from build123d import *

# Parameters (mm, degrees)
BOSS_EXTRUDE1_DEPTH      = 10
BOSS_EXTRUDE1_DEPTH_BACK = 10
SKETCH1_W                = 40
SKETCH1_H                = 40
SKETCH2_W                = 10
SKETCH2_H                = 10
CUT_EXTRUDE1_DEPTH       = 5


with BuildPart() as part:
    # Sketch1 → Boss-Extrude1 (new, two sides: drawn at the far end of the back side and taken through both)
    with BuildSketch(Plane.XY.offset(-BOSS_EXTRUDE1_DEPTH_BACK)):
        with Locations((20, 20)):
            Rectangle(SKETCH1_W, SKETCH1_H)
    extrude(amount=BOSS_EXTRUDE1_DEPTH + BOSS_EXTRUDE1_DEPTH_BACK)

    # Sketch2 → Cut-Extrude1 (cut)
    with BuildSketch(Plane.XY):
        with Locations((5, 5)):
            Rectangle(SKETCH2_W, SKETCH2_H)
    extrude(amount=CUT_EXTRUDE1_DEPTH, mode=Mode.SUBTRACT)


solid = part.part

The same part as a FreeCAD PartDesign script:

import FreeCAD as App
import Part
import Sketcher

V = App.Vector

doc = App.newDocument("Part")
body = doc.addObject("PartDesign::Body", "Body")

sketch1 = doc.addObject("Sketcher::SketchObject", "Sketch")
body.addObject(sketch1)
sketch1.AttachmentSupport = (doc.XY_Plane, [""])
sketch1.MapMode = "FlatFace"
sketch1.addGeometry([
    Part.LineSegment(V(0, 40, 0), V(0, 0, 0)),
    Part.LineSegment(V(0, 0, 0), V(40, 0, 0)),
    Part.LineSegment(V(40, 0, 0), V(40, 40, 0)),
    Part.LineSegment(V(40, 40, 0), V(0, 40, 0)),
], False)
sketch1.addConstraint([
    Sketcher.Constraint("Coincident", 0, 2, 1, 1),
    Sketcher.Constraint("Coincident", 1, 2, 2, 1),
    Sketcher.Constraint("Coincident", 2, 2, 3, 1),
    Sketcher.Constraint("Coincident", 3, 2, 0, 1),
    Sketcher.Constraint("Vertical", 0),
    Sketcher.Constraint("Horizontal", 1),
    Sketcher.Constraint("Vertical", 2),
    Sketcher.Constraint("Horizontal", 3),
    Sketcher.Constraint("Coincident", 0, 2, -1, 1),
    Sketcher.Constraint("Equal", 3, 0),
    Sketcher.Constraint("DistanceX", 1, 1, 1, 2, 40.0),
])
pad1 = doc.addObject("PartDesign::Pad", "Pad")
body.addObject(pad1)
pad1.Profile = sketch1
pad1.Type = "TwoLengths"
pad1.Length = 10
pad1.Length2 = 10

sketch2 = doc.addObject("Sketcher::SketchObject", "Sketch001")
body.addObject(sketch2)
sketch2.AttachmentSupport = (doc.XY_Plane, [""])
sketch2.MapMode = "FlatFace"
sketch2.addGeometry([
    Part.LineSegment(V(0, 10, 0), V(0, 0, 0)),
    Part.LineSegment(V(0, 0, 0), V(10, 0, 0)),
    Part.LineSegment(V(10, 0, 0), V(10, 10, 0)),
    Part.LineSegment(V(10, 10, 0), V(0, 10, 0)),
], False)
sketch2.addConstraint([
    Sketcher.Constraint("Coincident", 0, 2, 1, 1),
    Sketcher.Constraint("Coincident", 1, 2, 2, 1),
    Sketcher.Constraint("Coincident", 2, 2, 3, 1),
    Sketcher.Constraint("Coincident", 3, 2, 0, 1),
    Sketcher.Constraint("Vertical", 0),
    Sketcher.Constraint("Horizontal", 1),
    Sketcher.Constraint("Vertical", 2),
    Sketcher.Constraint("Horizontal", 3),
    Sketcher.Constraint("Coincident", 0, 2, -1, 1),
    Sketcher.Constraint("Equal", 3, 0),
    Sketcher.Constraint("DistanceX", 1, 1, 1, 2, 10.0),
])
pocket1 = doc.addObject("PartDesign::Pocket", "Pocket")
body.addObject(pocket1)
pocket1.Profile = sketch2
pocket1.Length = 5
pocket1.Reversed = True

doc.recompute()
